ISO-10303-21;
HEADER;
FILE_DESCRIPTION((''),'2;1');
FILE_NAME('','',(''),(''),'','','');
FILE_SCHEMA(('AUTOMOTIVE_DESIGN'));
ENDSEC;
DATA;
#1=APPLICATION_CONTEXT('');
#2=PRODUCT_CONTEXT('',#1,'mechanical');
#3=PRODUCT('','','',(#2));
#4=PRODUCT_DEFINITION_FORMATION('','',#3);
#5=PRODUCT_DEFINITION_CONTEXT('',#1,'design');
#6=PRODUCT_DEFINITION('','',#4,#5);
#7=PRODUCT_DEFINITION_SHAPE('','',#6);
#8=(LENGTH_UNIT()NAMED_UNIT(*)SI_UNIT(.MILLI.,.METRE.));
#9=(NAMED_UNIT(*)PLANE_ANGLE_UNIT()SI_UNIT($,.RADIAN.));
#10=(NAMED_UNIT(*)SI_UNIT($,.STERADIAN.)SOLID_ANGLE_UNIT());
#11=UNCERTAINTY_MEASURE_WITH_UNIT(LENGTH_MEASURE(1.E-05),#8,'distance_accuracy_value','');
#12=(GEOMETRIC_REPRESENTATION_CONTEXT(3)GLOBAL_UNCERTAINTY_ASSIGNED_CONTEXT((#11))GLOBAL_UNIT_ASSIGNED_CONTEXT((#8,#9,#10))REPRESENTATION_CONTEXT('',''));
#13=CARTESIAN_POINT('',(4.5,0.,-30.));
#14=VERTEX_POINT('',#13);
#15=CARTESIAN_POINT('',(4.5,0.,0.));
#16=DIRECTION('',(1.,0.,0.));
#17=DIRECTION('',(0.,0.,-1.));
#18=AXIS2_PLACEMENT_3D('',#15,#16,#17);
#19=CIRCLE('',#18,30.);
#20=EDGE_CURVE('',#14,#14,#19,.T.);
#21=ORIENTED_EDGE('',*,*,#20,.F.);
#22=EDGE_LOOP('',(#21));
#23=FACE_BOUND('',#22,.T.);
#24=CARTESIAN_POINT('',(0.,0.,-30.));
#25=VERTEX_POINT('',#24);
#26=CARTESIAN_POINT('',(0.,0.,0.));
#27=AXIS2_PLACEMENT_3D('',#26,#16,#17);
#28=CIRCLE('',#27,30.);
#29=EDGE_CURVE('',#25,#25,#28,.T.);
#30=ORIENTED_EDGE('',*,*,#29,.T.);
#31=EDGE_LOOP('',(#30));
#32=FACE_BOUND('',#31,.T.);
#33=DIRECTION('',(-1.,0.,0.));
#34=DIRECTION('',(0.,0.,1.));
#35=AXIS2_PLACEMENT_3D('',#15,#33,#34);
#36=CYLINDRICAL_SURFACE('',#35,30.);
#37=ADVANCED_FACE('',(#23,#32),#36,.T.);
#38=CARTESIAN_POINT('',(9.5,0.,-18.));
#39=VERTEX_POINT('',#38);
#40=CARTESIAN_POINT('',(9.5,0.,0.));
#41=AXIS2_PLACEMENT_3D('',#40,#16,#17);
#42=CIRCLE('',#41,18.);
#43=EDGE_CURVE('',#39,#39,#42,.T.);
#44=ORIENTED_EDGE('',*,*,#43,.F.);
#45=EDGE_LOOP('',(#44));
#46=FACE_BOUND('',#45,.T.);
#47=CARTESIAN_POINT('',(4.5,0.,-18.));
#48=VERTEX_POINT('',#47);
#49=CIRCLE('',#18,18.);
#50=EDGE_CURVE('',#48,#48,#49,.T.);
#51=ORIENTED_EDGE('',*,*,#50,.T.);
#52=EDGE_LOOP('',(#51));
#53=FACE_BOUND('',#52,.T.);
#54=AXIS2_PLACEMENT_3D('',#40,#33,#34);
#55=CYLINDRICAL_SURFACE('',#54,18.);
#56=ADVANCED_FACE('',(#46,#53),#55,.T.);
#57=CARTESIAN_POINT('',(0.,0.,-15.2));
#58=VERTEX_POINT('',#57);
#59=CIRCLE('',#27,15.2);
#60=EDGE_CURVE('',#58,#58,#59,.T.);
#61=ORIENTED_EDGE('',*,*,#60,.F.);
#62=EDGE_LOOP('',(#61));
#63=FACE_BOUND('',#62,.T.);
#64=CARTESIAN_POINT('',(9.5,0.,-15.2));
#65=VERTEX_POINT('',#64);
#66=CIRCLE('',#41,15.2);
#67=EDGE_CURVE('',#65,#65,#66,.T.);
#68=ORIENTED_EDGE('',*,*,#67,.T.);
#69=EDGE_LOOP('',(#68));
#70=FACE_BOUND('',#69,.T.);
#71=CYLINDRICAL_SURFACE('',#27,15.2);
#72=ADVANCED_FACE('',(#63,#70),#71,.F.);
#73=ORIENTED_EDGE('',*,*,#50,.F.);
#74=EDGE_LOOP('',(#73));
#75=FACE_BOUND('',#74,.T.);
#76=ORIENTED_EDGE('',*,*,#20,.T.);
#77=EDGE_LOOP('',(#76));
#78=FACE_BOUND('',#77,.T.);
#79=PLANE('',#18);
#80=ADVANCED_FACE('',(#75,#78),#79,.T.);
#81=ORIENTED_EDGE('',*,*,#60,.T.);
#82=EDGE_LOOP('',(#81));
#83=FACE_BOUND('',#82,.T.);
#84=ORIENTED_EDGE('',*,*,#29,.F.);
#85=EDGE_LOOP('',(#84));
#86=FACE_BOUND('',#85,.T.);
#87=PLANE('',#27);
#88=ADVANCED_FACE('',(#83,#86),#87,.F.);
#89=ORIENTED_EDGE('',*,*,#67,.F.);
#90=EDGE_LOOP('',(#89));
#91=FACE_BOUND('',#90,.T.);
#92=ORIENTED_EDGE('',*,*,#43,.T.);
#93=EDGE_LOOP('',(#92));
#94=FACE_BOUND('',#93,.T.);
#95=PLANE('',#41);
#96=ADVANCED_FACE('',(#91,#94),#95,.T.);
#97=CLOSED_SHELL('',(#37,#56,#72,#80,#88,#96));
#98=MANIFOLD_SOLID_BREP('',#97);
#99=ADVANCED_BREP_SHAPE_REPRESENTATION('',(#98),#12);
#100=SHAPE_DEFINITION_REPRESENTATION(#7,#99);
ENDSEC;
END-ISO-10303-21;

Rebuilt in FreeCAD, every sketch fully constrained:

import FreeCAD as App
import Part
import Sketcher
Q = App.Units.Quantity

doc = App.newDocument("Part")
params = doc.addObject("Spreadsheet::Sheet", "Params")
for row, (alias, value) in enumerate([
    ("sketch1_diameter", "60 mm"),
    ("pad1_length", "4.5 mm"),
    ("sketch2_diameter", "36 mm"),
    ("pad2_length", "5 mm"),
    ("sketch3_diameter", "30.4 mm"),
], start=1):
    params.set(f"A{row}", alias)
    params.set(f"B{row}", "=" + value)
    params.setAlias(f"B{row}", alias)

body = doc.addObject("PartDesign::Body", "Body")

sketch1 = doc.addObject("Sketcher::SketchObject", "Sketch")
body.addObject(sketch1)
sketch1.AttachmentSupport = (doc.YZ_Plane, [""])
sketch1.MapMode = "FlatFace"
sketch1.addGeometry(Part.Circle(App.Vector(0, 0, 0), App.Vector(0, 0, 1), 30), False)
sketch1.addConstraint(Sketcher.Constraint("Coincident", 0, 3, -1, 1))
sketch1.addConstraint(Sketcher.Constraint("Diameter", 0, Q("60 mm")))
sketch1.setExpression("Constraints[1]", "Params.sketch1_diameter")
pad1 = doc.addObject("PartDesign::Pad", "Pad")
body.addObject(pad1)
pad1.Profile = sketch1
pad1.setExpression("Length", "Params.pad1_length")

sketch2 = doc.addObject("Sketcher::SketchObject", "Sketch001")
body.addObject(sketch2)
sketch2.AttachmentSupport = (doc.YZ_Plane, [""])
sketch2.MapMode = "FlatFace"
sketch2.AttachmentOffset = App.Placement(App.Vector(0, 0, 4.5), App.Rotation())
sketch2.addGeometry(Part.Circle(App.Vector(0, 0, 0), App.Vector(0, 0, 1), 18), False)
sketch2.addConstraint(Sketcher.Constraint("Coincident", 0, 3, -1, 1))
sketch2.addConstraint(Sketcher.Constraint("Diameter", 0, Q("36 mm")))
sketch2.setExpression("Constraints[1]", "Params.sketch2_diameter")
pad2 = doc.addObject("PartDesign::Pad", "Pad001")
body.addObject(pad2)
pad2.Profile = sketch2
pad2.setExpression("Length", "Params.pad2_length")

sketch3 = doc.addObject("Sketcher::SketchObject", "Sketch002")
body.addObject(sketch3)
sketch3.AttachmentSupport = (doc.YZ_Plane, [""])
sketch3.MapMode = "FlatFace"
sketch3.AttachmentOffset = App.Placement(App.Vector(0, 0, 9.5), App.Rotation())
sketch3.addGeometry(Part.Circle(App.Vector(0, 0, 0), App.Vector(0, 0, 1), 15.2), False)
sketch3.addConstraint(Sketcher.Constraint("Coincident", 0, 3, -1, 1))
sketch3.addConstraint(Sketcher.Constraint("Diameter", 0, Q("30.4 mm")))
sketch3.setExpression("Constraints[1]", "Params.sketch3_diameter")
pocket1 = doc.addObject("PartDesign::Pocket", "Pocket")
body.addObject(pocket1)
pocket1.Profile = sketch3
pocket1.Type = "ThroughAll"

doc.recompute()
